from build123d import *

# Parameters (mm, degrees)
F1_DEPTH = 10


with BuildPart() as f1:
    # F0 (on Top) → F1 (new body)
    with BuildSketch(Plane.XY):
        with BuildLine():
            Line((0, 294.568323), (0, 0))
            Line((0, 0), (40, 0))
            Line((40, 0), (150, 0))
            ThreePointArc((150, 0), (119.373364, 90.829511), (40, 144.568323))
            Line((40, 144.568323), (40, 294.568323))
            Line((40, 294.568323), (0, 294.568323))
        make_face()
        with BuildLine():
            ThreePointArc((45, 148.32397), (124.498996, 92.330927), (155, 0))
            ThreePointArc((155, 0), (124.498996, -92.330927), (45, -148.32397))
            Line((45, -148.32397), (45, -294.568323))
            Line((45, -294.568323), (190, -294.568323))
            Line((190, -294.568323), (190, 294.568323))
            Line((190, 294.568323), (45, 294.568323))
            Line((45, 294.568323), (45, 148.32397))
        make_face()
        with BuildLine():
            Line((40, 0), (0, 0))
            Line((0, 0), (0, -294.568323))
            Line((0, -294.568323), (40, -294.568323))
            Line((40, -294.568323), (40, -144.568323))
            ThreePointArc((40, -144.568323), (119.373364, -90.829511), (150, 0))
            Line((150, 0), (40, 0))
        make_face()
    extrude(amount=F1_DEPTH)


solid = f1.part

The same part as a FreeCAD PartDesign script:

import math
import FreeCAD as App
import Part
import Sketcher
Q = App.Units.Quantity

doc = App.newDocument("Part")
body = doc.addObject("PartDesign::Body", "Body")
body.AllowCompound = True

sketch1 = doc.addObject("Sketcher::SketchObject", "Sketch")
body.addObject(sketch1)
sketch1.AttachmentSupport = (doc.XY_Plane, [""])
sketch1.MapMode = "FlatFace"
sketch1.addGeometry(Part.LineSegment(App.Vector(0, 295, 0), App.Vector(0, -295, 0)), False)
sketch1.addGeometry(Part.LineSegment(App.Vector(0, -295, 0), App.Vector(40, -295, 0)), False)
sketch1.addGeometry(Part.LineSegment(App.Vector(40, -295, 0), App.Vector(40, -145, 0)), False)
sketch1.addGeometry(Part.ArcOfCircle(Part.Circle(App.Vector(0, 0, 0), App.Vector(0, 0, 1), 150), math.radians(-75), math.radians(0)), False)
sketch1.addGeometry(Part.ArcOfCircle(Part.Circle(App.Vector(0, 0, 0), App.Vector(0, 0, 1), 150), math.radians(0), math.radians(75)), False)
sketch1.addGeometry(Part.LineSegment(App.Vector(40, 145, 0), App.Vector(40, 295, 0)), False)
sketch1.addGeometry(Part.LineSegment(App.Vector(40, 295, 0), App.Vector(0, 295, 0)), False)
sketch1.addGeometry(Part.ArcOfCircle(Part.Circle(App.Vector(0, 0, 0), App.Vector(0, 0, 1), 155), math.radians(0), math.radians(73)), False)
sketch1.addGeometry(Part.ArcOfCircle(Part.Circle(App.Vector(0, 0, 0), App.Vector(0, 0, 1), 155), math.radians(-73), math.radians(0)), False)
sketch1.addGeometry(Part.LineSegment(App.Vector(45, -148, 0), App.Vector(45, -295, 0)), False)
sketch1.addGeometry(Part.LineSegment(App.Vector(45, -295, 0), App.Vector(190, -295, 0)), False)
sketch1.addGeometry(Part.LineSegment(App.Vector(190, -295, 0), App.Vector(190, 295, 0)), False)
sketch1.addGeometry(Part.LineSegment(App.Vector(190, 295, 0), App.Vector(45, 295, 0)), False)
sketch1.addGeometry(Part.LineSegment(App.Vector(45, 295, 0), App.Vector(45, 148, 0)), False)
sketch1.addConstraint(Sketcher.Constraint("Coincident", 0, 2, 1, 1))
sketch1.addConstraint(Sketcher.Constraint("Coincident", 1, 2, 2, 1))
sketch1.addConstraint(Sketcher.Constraint("Coincident", 2, 2, 3, 1))
sketch1.addConstraint(Sketcher.Constraint("Tangent", 3, 2, 4, 1))
sketch1.addConstraint(Sketcher.Constraint("Coincident", 4, 2, 5, 1))
sketch1.addConstraint(Sketcher.Constraint("Coincident", 5, 2, 6, 1))
sketch1.addConstraint(Sketcher.Constraint("Coincident", 6, 2, 0, 1))
sketch1.addConstraint(Sketcher.Constraint("Tangent", 7, 1, 8, 2))
sketch1.addConstraint(Sketcher.Constraint("Coincident", 8, 1, 9, 1))
sketch1.addConstraint(Sketcher.Constraint("Coincident", 9, 2, 10, 1))
sketch1.addConstraint(Sketcher.Constraint("Coincident", 10, 2, 11, 1))
sketch1.addConstraint(Sketcher.Constraint("Coincident", 11, 2, 12, 1))
sketch1.addConstraint(Sketcher.Constraint("Coincident", 12, 2, 13, 1))
sketch1.addConstraint(Sketcher.Constraint("Coincident", 13, 2, 7, 2))
sketch1.addConstraint(Sketcher.Constraint("Vertical", 0))
sketch1.addConstraint(Sketcher.Constraint("Horizontal", 1))
sketch1.addConstraint(Sketcher.Constraint("Vertical", 2))
sketch1.addConstraint(Sketcher.Constraint("Vertical", 5))
sketch1.addConstraint(Sketcher.Constraint("Horizontal", 6))
sketch1.addConstraint(Sketcher.Constraint("Vertical", 9))
sketch1.addConstraint(Sketcher.Constraint("Horizontal", 10))
sketch1.addConstraint(Sketcher.Constraint("Vertical", 11))
sketch1.addConstraint(Sketcher.Constraint("Horizontal", 12))
sketch1.addConstraint(Sketcher.Constraint("Vertical", 13))
sketch1.addConstraint(Sketcher.Constraint("Coincident", 3, 3, -1, 1))
sketch1.addConstraint(Sketcher.Constraint("Coincident", 7, 3, -1, 1))
sketch1.addConstraint(Sketcher.Constraint("Equal", 3, 4))
sketch1.addConstraint(Sketcher.Constraint("Equal", 7, 8))
sketch1.addConstraint(Sketcher.Constraint("Symmetric", 0, 2, 6, 2, -1, 1))
sketch1.addConstraint(Sketcher.Constraint("Symmetric", 9, 2, 12, 2, -1))
sketch1.addConstraint(Sketcher.Constraint("PointOnObject", 3, 2, -1))
sketch1.addConstraint(Sketcher.Constraint("PointOnObject", 7, 1, -1))
sketch1.addConstraint(Sketcher.Constraint("Horizontal", 1, 2, 9, 2))
sketch1.addConstraint(Sketcher.Constraint("Vertical", 2, 2, 4, 2))
sketch1.addConstraint(Sketcher.Constraint("Radius", 3, Q("149.999999 mm")))
sketch1.addConstraint(Sketcher.Constraint("Radius", 7, Q("154.999999 mm")))
sketch1.addConstraint(Sketcher.Constraint("DistanceX", 1, 1, 1, 2, Q("40 mm")))
sketch1.addConstraint(Sketcher.Constraint("DistanceX", 10, 1, 10, 2, Q("145 mm")))
sketch1.addConstraint(Sketcher.Constraint("DistanceY", 2, 1, 2, 2, Q("150 mm")))
sketch1.addConstraint(Sketcher.Constraint("DistanceX", -1, 1, 8, 1, Q("45 mm")))
pad1 = doc.addObject("PartDesign::Pad", "Pad")
body.addObject(pad1)
pad1.Profile = sketch1
pad1.Length = 10

doc.recompute()
